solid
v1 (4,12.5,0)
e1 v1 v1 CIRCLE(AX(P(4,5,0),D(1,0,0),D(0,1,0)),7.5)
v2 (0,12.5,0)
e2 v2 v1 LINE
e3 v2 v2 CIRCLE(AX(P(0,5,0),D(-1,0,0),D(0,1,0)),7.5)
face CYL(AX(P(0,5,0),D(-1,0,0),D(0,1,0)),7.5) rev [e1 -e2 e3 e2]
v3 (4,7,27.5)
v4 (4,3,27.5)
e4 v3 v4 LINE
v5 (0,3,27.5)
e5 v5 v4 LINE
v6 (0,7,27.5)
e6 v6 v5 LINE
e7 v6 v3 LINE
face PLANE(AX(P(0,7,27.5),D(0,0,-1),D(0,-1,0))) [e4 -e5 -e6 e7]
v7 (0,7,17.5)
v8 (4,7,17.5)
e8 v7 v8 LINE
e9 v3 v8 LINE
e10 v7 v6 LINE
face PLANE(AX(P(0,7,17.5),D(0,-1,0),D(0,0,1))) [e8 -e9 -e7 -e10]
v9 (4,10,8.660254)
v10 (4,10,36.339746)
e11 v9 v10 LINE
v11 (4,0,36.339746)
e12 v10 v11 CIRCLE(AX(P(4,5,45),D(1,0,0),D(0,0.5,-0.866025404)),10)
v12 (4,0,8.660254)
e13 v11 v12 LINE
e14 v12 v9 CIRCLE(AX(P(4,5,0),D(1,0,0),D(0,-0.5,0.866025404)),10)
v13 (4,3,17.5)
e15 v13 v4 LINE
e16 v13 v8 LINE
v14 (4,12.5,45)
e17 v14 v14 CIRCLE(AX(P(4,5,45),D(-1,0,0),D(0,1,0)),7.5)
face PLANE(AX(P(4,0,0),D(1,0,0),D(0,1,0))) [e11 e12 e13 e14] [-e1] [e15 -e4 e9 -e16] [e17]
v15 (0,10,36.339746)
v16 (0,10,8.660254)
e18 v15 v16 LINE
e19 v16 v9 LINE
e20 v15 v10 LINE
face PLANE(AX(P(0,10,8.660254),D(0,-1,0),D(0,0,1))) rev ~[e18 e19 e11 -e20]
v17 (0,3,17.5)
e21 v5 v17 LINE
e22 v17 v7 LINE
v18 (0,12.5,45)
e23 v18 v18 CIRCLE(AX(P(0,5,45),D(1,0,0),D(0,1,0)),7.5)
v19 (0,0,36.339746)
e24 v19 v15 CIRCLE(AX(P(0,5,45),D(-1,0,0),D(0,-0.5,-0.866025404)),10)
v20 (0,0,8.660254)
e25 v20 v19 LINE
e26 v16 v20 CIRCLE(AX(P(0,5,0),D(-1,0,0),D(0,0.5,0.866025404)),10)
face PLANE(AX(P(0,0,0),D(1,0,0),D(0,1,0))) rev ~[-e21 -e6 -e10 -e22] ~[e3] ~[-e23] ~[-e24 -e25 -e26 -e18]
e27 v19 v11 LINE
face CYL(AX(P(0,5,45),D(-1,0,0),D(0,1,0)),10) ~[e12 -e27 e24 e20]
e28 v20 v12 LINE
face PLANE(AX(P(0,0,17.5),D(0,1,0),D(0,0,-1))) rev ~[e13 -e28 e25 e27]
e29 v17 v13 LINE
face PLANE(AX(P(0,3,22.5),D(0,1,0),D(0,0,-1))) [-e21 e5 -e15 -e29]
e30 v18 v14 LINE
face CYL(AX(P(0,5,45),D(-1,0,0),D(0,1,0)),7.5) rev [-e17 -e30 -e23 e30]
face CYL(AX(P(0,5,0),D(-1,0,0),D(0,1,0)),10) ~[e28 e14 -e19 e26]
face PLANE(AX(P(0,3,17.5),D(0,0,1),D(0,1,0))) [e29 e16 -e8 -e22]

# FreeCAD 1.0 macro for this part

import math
import FreeCAD as App
import Part
import Sketcher

V = App.Vector
Q = App.Units.Quantity


def add_polygon(sketch, points):
    """Adds a closed chain of lines whose ends are joined by coincident constraints."""
    first, n = sketch.GeometryCount, len(points)
    for a, b in zip(points, points[1:] + points[:1]):
        sketch.addGeometry(Part.LineSegment(App.Vector(*a, 0), App.Vector(*b, 0)), False)
    for i in range(n):
        sketch.addConstraint(Sketcher.Constraint("Coincident", first + i, 2, first + (i + 1) % n, 1))

doc = App.newDocument("Part")
params = doc.addObject("Spreadsheet::Sheet", "Params")
for row, (alias, value) in enumerate([
    ("sketch1_diameter", "15 mm"),
    ("sketch1_radius", "10 mm"),
    ("sketch1_height", "10 mm"),
    ("sketch1_width", "4 mm"),
    ("pad1_length", "4 mm"),
], start=1):
    params.set(f"A{row}", alias)
    params.set(f"B{row}", "=" + value)
    params.setAlias(f"B{row}", alias)

body = doc.addObject("PartDesign::Body", "Body")

# Sketch on YZ plane
sketch1 = body.newObject("Sketcher::SketchObject", "Sketch")
sketch1.AttachmentSupport = (doc.getObject("YZ_Plane"), [""])
sketch1.MapMode = "FlatFace"
sketch1.addGeometry(Part.LineSegment(V(10, 8.7, 0), V(10, 36.3, 0)), False)  # 0
sketch1.addGeometry(Part.ArcOfCircle(Part.Circle(V(5, 45, 0), V(0, 0, 1), 10), math.radians(-60), math.radians(240)), False)  # 1
sketch1.addGeometry(Part.LineSegment(V(0, 36.3, 0), V(0, 8.7, 0)), False)  # 2
sketch1.addGeometry(Part.ArcOfCircle(Part.Circle(V(5, 0, 0), V(0, 0, 1), 10), math.radians(120), math.radians(420)), False)  # 3
sketch1.addGeometry(Part.Circle(V(5, 0, 0), V(0, 0, 1), 7.5), False)  # 4
add_polygon(sketch1, [(3, 17.5), (3, 27.5), (7, 27.5), (7, 17.5)])  # lines 5-8
sketch1.addGeometry(Part.Circle(V(5, 45, 0), V(0, 0, 1), 7.5), False)  # 9
sketch1.addConstraint([
    Sketcher.Constraint("Coincident", 0, 2, 1, 1),
    Sketcher.Constraint("Coincident", 1, 2, 2, 1),
    Sketcher.Constraint("Coincident", 2, 2, 3, 1),
    Sketcher.Constraint("Coincident", 3, 2, 0, 1),
    Sketcher.Constraint("Vertical", 0),
    Sketcher.Constraint("Vertical", 2),
    Sketcher.Constraint("Vertical", 5),
    Sketcher.Constraint("Horizontal", 6),
    Sketcher.Constraint("Vertical", 7),
    Sketcher.Constraint("Horizontal", 8),
    Sketcher.Constraint("Coincident", 4, 3, 3, 3),
    Sketcher.Constraint("Coincident", 9, 3, 1, 3),
    Sketcher.Constraint("Equal", 1, 3),
    Sketcher.Constraint("Equal", 4, 9),
    Sketcher.Constraint("PointOnObject", 3, 3, -1),
    Sketcher.Constraint("PointOnObject", 1, 2, -2),
    Sketcher.Constraint("Horizontal", 0, 2, 1, 2),
    Sketcher.Constraint("Horizontal", 2, 2, 3, 2),
    Sketcher.Constraint("Diameter", 4, Q("15 mm")),
    Sketcher.Constraint("Radius", 1, Q("10 mm")),
    Sketcher.Constraint("DistanceY", 5, 1, 5, 2, Q("10 mm")),
    Sketcher.Constraint("DistanceY", -1, 1, 1, 3, Q("45 mm")),
    Sketcher.Constraint("DistanceX", -1, 1, 0, 2, Q("10 mm")),
    Sketcher.Constraint("DistanceX", 6, 1, 6, 2, Q("4 mm")),
    Sketcher.Constraint("DistanceX", -1, 1, 5, 2, Q("3 mm")),
    Sketcher.Constraint("DistanceY", -1, 1, 5, 2, Q("27.5 mm")),
])
sketch1.setExpression("Constraints[22]", "Params.sketch1_diameter")
sketch1.setExpression("Constraints[23]", "Params.sketch1_radius")
sketch1.setExpression("Constraints[24]", "Params.sketch1_height")
sketch1.setExpression("Constraints[27]", "Params.sketch1_width")
pad1 = body.newObject("PartDesign::Pad", "Pad")
pad1.Profile = sketch1
pad1.setExpression("Length", "Params.pad1_length")

doc.recompute()
